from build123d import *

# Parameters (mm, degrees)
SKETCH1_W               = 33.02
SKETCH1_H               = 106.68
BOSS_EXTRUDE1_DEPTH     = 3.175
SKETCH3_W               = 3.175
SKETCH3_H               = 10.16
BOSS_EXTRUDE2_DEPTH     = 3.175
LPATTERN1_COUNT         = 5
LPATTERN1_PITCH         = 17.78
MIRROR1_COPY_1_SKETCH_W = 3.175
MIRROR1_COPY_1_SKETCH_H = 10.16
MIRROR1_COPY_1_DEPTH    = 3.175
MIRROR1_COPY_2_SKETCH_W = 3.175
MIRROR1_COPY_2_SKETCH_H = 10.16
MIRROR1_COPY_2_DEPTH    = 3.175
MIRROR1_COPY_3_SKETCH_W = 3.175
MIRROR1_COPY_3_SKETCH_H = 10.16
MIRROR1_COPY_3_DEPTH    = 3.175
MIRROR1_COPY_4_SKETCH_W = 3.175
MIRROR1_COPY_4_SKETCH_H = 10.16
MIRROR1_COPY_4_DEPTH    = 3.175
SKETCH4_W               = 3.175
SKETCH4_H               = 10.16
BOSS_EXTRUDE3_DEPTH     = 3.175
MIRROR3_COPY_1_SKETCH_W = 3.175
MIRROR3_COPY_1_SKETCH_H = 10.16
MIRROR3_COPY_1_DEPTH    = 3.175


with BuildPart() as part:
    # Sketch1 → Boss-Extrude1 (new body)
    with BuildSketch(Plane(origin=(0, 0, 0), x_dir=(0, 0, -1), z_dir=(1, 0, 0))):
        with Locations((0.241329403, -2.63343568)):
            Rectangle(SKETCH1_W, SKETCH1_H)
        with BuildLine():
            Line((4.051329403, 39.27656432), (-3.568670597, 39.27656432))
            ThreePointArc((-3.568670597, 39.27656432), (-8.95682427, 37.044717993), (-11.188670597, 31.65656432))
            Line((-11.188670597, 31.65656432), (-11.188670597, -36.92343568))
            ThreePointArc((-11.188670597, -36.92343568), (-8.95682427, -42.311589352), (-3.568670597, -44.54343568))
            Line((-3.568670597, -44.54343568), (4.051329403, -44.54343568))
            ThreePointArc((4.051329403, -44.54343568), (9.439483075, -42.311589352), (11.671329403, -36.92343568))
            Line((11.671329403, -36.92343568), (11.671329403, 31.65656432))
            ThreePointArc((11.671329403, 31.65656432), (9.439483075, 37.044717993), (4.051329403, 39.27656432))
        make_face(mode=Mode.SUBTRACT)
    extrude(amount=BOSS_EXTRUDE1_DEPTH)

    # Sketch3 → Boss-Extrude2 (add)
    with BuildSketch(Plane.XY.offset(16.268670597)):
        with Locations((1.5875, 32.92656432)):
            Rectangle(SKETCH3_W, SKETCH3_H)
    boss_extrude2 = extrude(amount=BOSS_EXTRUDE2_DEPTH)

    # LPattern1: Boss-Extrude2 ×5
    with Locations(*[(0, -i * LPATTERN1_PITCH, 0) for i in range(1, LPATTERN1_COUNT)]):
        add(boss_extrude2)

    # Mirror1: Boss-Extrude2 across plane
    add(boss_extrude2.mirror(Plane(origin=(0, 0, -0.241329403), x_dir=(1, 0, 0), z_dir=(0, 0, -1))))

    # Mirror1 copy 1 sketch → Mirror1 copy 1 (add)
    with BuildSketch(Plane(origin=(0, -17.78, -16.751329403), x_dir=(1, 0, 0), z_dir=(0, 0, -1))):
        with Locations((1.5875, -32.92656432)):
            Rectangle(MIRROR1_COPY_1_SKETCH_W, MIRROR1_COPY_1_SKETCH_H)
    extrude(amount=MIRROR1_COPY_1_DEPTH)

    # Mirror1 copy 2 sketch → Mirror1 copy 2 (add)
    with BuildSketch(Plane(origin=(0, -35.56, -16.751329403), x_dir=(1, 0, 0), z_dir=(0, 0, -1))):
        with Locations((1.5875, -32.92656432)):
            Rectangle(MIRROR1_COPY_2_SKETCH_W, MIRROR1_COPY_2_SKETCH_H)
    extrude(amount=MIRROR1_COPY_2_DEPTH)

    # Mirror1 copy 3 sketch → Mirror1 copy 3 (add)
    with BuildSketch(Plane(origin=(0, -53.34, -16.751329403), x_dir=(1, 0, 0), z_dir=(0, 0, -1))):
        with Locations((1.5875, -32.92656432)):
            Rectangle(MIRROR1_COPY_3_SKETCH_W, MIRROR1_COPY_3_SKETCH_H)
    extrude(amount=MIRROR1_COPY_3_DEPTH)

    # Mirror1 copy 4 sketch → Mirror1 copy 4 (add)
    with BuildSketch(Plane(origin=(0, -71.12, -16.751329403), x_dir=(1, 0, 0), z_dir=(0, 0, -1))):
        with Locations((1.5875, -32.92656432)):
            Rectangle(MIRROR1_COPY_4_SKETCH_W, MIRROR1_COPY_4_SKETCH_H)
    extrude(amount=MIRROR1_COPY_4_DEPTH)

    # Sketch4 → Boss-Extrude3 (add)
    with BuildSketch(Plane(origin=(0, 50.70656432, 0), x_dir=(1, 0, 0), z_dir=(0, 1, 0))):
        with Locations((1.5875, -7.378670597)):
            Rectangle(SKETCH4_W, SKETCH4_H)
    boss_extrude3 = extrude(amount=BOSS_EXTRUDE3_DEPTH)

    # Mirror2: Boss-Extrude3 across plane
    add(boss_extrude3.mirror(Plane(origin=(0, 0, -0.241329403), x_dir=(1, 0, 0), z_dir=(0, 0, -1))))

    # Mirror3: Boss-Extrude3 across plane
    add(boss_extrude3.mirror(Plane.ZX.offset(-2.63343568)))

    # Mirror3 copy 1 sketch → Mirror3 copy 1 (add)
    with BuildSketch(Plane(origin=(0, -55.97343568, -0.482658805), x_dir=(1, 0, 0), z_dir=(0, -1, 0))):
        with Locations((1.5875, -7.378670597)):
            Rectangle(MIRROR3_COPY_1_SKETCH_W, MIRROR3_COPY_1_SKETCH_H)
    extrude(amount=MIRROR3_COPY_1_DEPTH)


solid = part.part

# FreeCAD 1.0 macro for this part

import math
import FreeCAD as App
import Part
import Sketcher
from FreeCAD import Vector
Q = App.Units.Quantity

doc = App.newDocument("Part")
body = doc.addObject("PartDesign::Body", "Body")

sketch1 = doc.addObject("Sketcher::SketchObject", "Sketch")
body.addObject(sketch1)
sketch1.AttachmentSupport = (doc.YZ_Plane, [""])
sketch1.MapMode = "FlatFace"
sketch1.addGeometry(Part.LineSegment(Vector(51, 16, 0), Vector(-56, 16, 0)), False)
sketch1.addGeometry(Part.LineSegment(Vector(-56, 16, 0), Vector(-56, -17, 0)), False)
sketch1.addGeometry(Part.LineSegment(Vector(-56, -17, 0), Vector(51, -17, 0)), False)
sketch1.addGeometry(Part.LineSegment(Vector(51, -17, 0), Vector(51, 16, 0)), False)
sketch1.addGeometry(Part.LineSegment(Vector(39, 4, 0), Vector(39, -4, 0)), False)
sketch1.addGeometry(Part.ArcOfCircle(Part.Circle(Vector(32, -4, 0), Vector(0, 0, 1), 8), math.radians(-90), math.radians(0)), False)
sketch1.addGeometry(Part.LineSegment(Vector(32, -12, 0), Vector(-37, -12, 0)), False)
sketch1.addGeometry(Part.ArcOfCircle(Part.Circle(Vector(-37, -4, 0), Vector(0, 0, 1), 8), math.radians(-180), math.radians(-90)), False)
sketch1.addGeometry(Part.LineSegment(Vector(-45, -4, 0), Vector(-45, 4, 0)), False)
sketch1.addGeometry(Part.ArcOfCircle(Part.Circle(Vector(-37, 4, 0), Vector(0, 0, 1), 8), math.radians(90), math.radians(180)), False)
sketch1.addGeometry(Part.LineSegment(Vector(-37, 11, 0), Vector(32, 11, 0)), False)
sketch1.addGeometry(Part.ArcOfCircle(Part.Circle(Vector(32, 4, 0), Vector(0, 0, 1), 8), math.radians(0), math.radians(90)), False)
sketch1.addConstraint(Sketcher.Constraint("Coincident", 0, 2, 1, 1))
sketch1.addConstraint(Sketcher.Constraint("Coincident", 1, 2, 2, 1))
sketch1.addConstraint(Sketcher.Constraint("Coincident", 2, 2, 3, 1))
sketch1.addConstraint(Sketcher.Constraint("Coincident", 3, 2, 0, 1))
sketch1.addConstraint(Sketcher.Constraint("Tangent", 4, 2, 5, 2))
sketch1.addConstraint(Sketcher.Constraint("Tangent", 5, 1, 6, 1))
sketch1.addConstraint(Sketcher.Constraint("Tangent", 6, 2, 7, 2))
sketch1.addConstraint(Sketcher.Constraint("Tangent", 7, 1, 8, 1))
sketch1.addConstraint(Sketcher.Constraint("Tangent", 8, 2, 9, 2))
sketch1.addConstraint(Sketcher.Constraint("Tangent", 9, 1, 10, 1))
sketch1.addConstraint(Sketcher.Constraint("Tangent", 10, 2, 11, 2))
sketch1.addConstraint(Sketcher.Constraint("Tangent", 11, 1, 4, 1))
sketch1.addConstraint(Sketcher.Constraint("Horizontal", 0))
sketch1.addConstraint(Sketcher.Constraint("Vertical", 1))
sketch1.addConstraint(Sketcher.Constraint("Horizontal", 2))
sketch1.addConstraint(Sketcher.Constraint("Vertical", 3))
sketch1.addConstraint(Sketcher.Constraint("Vertical", 4))
sketch1.addConstraint(Sketcher.Constraint("Horizontal", 6))
sketch1.addConstraint(Sketcher.Constraint("Vertical", 8))
sketch1.addConstraint(Sketcher.Constraint("Horizontal", 10))
sketch1.addConstraint(Sketcher.Constraint("Equal", 5, 7))
sketch1.addConstraint(Sketcher.Constraint("Equal", 7, 9))
sketch1.addConstraint(Sketcher.Constraint("Equal", 9, 11))
sketch1.addConstraint(Sketcher.Constraint("Radius", 5, Q("0.3 in")))
sketch1.addConstraint(Sketcher.Constraint("DistanceX", 0, 2, 0, 1, Q("4.2 in")))
sketch1.addConstraint(Sketcher.Constraint("DistanceX", 6, 2, 6, 1, Q("2.7 in")))
sketch1.addConstraint(Sketcher.Constraint("DistanceY", 1, 2, 1, 1, Q("1.3 in")))
sketch1.addConstraint(Sketcher.Constraint("DistanceY", 4, 2, 4, 1, Q("0.3 in")))
sketch1.addConstraint(Sketcher.Constraint("DistanceY", 9, 3, 0, 2, Q("0.5 in")))
sketch1.addConstraint(Sketcher.Constraint("DistanceX", 0, 2, 9, 3, Q("0.75 in")))
sketch1.addConstraint(Sketcher.Constraint("DistanceY", 5, 3, -1, 1, 4.051329))
sketch1.addConstraint(Sketcher.Constraint("DistanceX", -1, 1, 5, 3, 31.656564))
pad1 = doc.addObject("PartDesign::Pad", "Pad")
body.addObject(pad1)
pad1.Profile = sketch1
pad1.Length = Q("0.125 in")

sketch2 = doc.addObject("Sketcher::SketchObject", "Sketch001")
body.addObject(sketch2)
sketch2.AttachmentSupport = (doc.XY_Plane, [""])
sketch2.MapMode = "FlatFace"
sketch2.AttachmentOffset = App.Placement(Vector(0, 0, 16.268671), App.Rotation())
sketch2.addGeometry(Part.LineSegment(Vector(0, 38, 0), Vector(0, 27.8, 0)), False)
sketch2.addGeometry(Part.LineSegment(Vector(0, 27.8, 0), Vector(3.2, 27.8, 0)), False)
sketch2.addGeometry(Part.LineSegment(Vector(3.2, 27.8, 0), Vector(3.2, 38, 0)), False)
sketch2.addGeometry(Part.LineSegment(Vector(3.2, 38, 0), Vector(0, 38, 0)), False)
sketch2.addConstraint(Sketcher.Constraint("Coincident", 0, 2, 1, 1))
sketch2.addConstraint(Sketcher.Constraint("Coincident", 1, 2, 2, 1))
sketch2.addConstraint(Sketcher.Constraint("Coincident", 2, 2, 3, 1))
sketch2.addConstraint(Sketcher.Constraint("Coincident", 3, 2, 0, 1))
sketch2.addConstraint(Sketcher.Constraint("Vertical", 0))
sketch2.addConstraint(Sketcher.Constraint("Horizontal", 1))
sketch2.addConstraint(Sketcher.Constraint("Vertical", 2))
sketch2.addConstraint(Sketcher.Constraint("Horizontal", 3))
sketch2.addConstraint(Sketcher.Constraint("PointOnObject", 0, 2, -2))
sketch2.addConstraint(Sketcher.Constraint("DistanceY", 0, 2, 0, 1, Q("0.4 in")))
sketch2.addConstraint(Sketcher.Constraint("DistanceX", 1, 1, 1, 2, Q("0.125 in")))
sketch2.addConstraint(Sketcher.Constraint("DistanceY", -1, 1, 0, 2, 27.846564))
pad2 = doc.addObject("PartDesign::Pad", "Pad001")
body.addObject(pad2)
pad2.Profile = sketch2
pad2.Length = Q("0.125 in")
doc.recompute()

linearpattern = doc.addObject("PartDesign::LinearPattern", "LinearPattern")
body.addObject(linearpattern)
linearpattern.Originals = [pad2]
linearpattern.Direction = (doc.Y_Axis, [""])
linearpattern.Mode = "offset"
linearpattern.Offset = Q("0.7 in")
linearpattern.Occurrences = 5
linearpattern.Reversed = True
body.Tip = linearpattern
doc.recompute()

datumplane = doc.addObject("PartDesign::Plane", "DatumPlane")
body.addObject(datumplane)
datumplane.AttachmentSupport = (doc.XY_Plane, [""])
datumplane.MapMode = "FlatFace"
datumplane.AttachmentOffset = App.Placement(Vector(0, 0, -0.241329), App.Rotation())
mirrored = doc.addObject("PartDesign::Mirrored", "Mirrored")
body.addObject(mirrored)
mirrored.Originals = [pad2]
mirrored.MirrorPlane = (datumplane, [""])
body.Tip = mirrored

sketch3 = doc.addObject("Sketcher::SketchObject", "Sketch002")
body.addObject(sketch3)
sketch3.AttachmentSupport = (doc.XY_Plane, [""])
sketch3.MapMode = "FlatFace"
sketch3.AttachmentOffset = App.Placement(Vector(0, 0, -16.751329), App.Rotation())
sketch3.addGeometry(Part.LineSegment(Vector(0, 10.1, 0), Vector(0, 20.2, 0)), False)
sketch3.addGeometry(Part.LineSegment(Vector(0, 20.2, 0), Vector(3.2, 20.2, 0)), False)
sketch3.addGeometry(Part.LineSegment(Vector(3.2, 20.2, 0), Vector(3.2, 10.1, 0)), False)
sketch3.addGeometry(Part.LineSegment(Vector(3.2, 10.1, 0), Vector(0, 10.1, 0)), False)
sketch3.addConstraint(Sketcher.Constraint("Coincident", 0, 2, 1, 1))
sketch3.addConstraint(Sketcher.Constraint("Coincident", 1, 2, 2, 1))
sketch3.addConstraint(Sketcher.Constraint("Coincident", 2, 2, 3, 1))
sketch3.addConstraint(Sketcher.Constraint("Coincident", 3, 2, 0, 1))
sketch3.addConstraint(Sketcher.Constraint("Vertical", 0))
sketch3.addConstraint(Sketcher.Constraint("Horizontal", 1))
sketch3.addConstraint(Sketcher.Constraint("Vertical", 2))
sketch3.addConstraint(Sketcher.Constraint("Horizontal", 3))
sketch3.addConstraint(Sketcher.Constraint("PointOnObject", 0, 2, -2))
sketch3.addConstraint(Sketcher.Constraint("DistanceY", 0, 1, 0, 2, Q("0.4 in")))
sketch3.addConstraint(Sketcher.Constraint("DistanceX", 1, 1, 1, 2, Q("0.125 in")))
sketch3.addConstraint(Sketcher.Constraint("DistanceY", -1, 1, 0, 2, 20.226564))
pad3 = doc.addObject("PartDesign::Pad", "Pad002")
body.addObject(pad3)
pad3.Profile = sketch3
pad3.Length = Q("0.125 in")
pad3.Reversed = True

sketch4 = doc.addObject("Sketcher::SketchObject", "Sketch003")
body.addObject(sketch4)
sketch4.AttachmentSupport = (doc.XY_Plane, [""])
sketch4.MapMode = "FlatFace"
sketch4.AttachmentOffset = App.Placement(Vector(0, 0, -16.751329), App.Rotation())
sketch4.addGeometry(Part.LineSegment(Vector(0, -7.7, 0), Vector(0, 2.4, 0)), False)
sketch4.addGeometry(Part.LineSegment(Vector(0, 2.4, 0), Vector(3.2, 2.4, 0)), False)
sketch4.addGeometry(Part.LineSegment(Vector(3.2, 2.4, 0), Vector(3.2, -7.7, 0)), False)
sketch4.addGeometry(Part.LineSegment(Vector(3.2, -7.7, 0), Vector(0, -7.7, 0)), False)
sketch4.addConstraint(Sketcher.Constraint("Coincident", 0, 2, 1, 1))
sketch4.addConstraint(Sketcher.Constraint("Coincident", 1, 2, 2, 1))
sketch4.addConstraint(Sketcher.Constraint("Coincident", 2, 2, 3, 1))
sketch4.addConstraint(Sketcher.Constraint("Coincident", 3, 2, 0, 1))
sketch4.addConstraint(Sketcher.Constraint("Vertical", 0))
sketch4.addConstraint(Sketcher.Constraint("Horizontal", 1))
sketch4.addConstraint(Sketcher.Constraint("Vertical", 2))
sketch4.addConstraint(Sketcher.Constraint("Horizontal", 3))
sketch4.addConstraint(Sketcher.Constraint("PointOnObject", 0, 2, -2))
sketch4.addConstraint(Sketcher.Constraint("DistanceY", 0, 1, 0, 2, Q("0.4 in")))
sketch4.addConstraint(Sketcher.Constraint("DistanceX", 1, 1, 1, 2, Q("0.125 in")))
sketch4.addConstraint(Sketcher.Constraint("DistanceY", -1, 1, 0, 2, 2.446564))
pad4 = doc.addObject("PartDesign::Pad", "Pad003")
body.addObject(pad4)
pad4.Profile = sketch4
pad4.Length = Q("0.125 in")
pad4.Reversed = True

sketch5 = doc.addObject("Sketcher::SketchObject", "Sketch004")
body.addObject(sketch5)
sketch5.AttachmentSupport = (doc.XY_Plane, [""])
sketch5.MapMode = "FlatFace"
sketch5.AttachmentOffset = App.Placement(Vector(0, 0, -16.751329), App.Rotation())
sketch5.addGeometry(Part.LineSegment(Vector(0, -25.5, 0), Vector(0, -15.3, 0)), False)
sketch5.addGeometry(Part.LineSegment(Vector(0, -15.3, 0), Vector(3.2, -15.3, 0)), False)
sketch5.addGeometry(Part.LineSegment(Vector(3.2, -15.3, 0), Vector(3.2, -25.5, 0)), False)
sketch5.addGeometry(Part.LineSegment(Vector(3.2, -25.5, 0), Vector(0, -25.5, 0)), False)
sketch5.addConstraint(Sketcher.Constraint("Coincident", 0, 2, 1, 1))
sketch5.addConstraint(Sketcher.Constraint("Coincident", 1, 2, 2, 1))
sketch5.addConstraint(Sketcher.Constraint("Coincident", 2, 2, 3, 1))
sketch5.addConstraint(Sketcher.Constraint("Coincident", 3, 2, 0, 1))
sketch5.addConstraint(Sketcher.Constraint("Vertical", 0))
sketch5.addConstraint(Sketcher.Constraint("Horizontal", 1))
sketch5.addConstraint(Sketcher.Constraint("Vertical", 2))
sketch5.addConstraint(Sketcher.Constraint("Horizontal", 3))
sketch5.addConstraint(Sketcher.Constraint("PointOnObject", 0, 2, -2))
sketch5.addConstraint(Sketcher.Constraint("DistanceY", 0, 1, 0, 2, Q("0.4 in")))
sketch5.addConstraint(Sketcher.Constraint("DistanceX", 1, 1, 1, 2, Q("0.125 in")))
sketch5.addConstraint(Sketcher.Constraint("DistanceY", 0, 2, -1, 1, 15.333436))
pad5 = doc.addObject("PartDesign::Pad", "Pad004")
body.addObject(pad5)
pad5.Profile = sketch5
pad5.Length = Q("0.125 in")
pad5.Reversed = True

sketch6 = doc.addObject("Sketcher::SketchObject", "Sketch005")
body.addObject(sketch6)
sketch6.AttachmentSupport = (doc.XY_Plane, [""])
sketch6.MapMode = "FlatFace"
sketch6.AttachmentOffset = App.Placement(Vector(0, 0, -16.751329), App.Rotation())
sketch6.addGeometry(Part.LineSegment(Vector(0, -43.3, 0), Vector(0, -33.1, 0)), False)
sketch6.addGeometry(Part.LineSegment(Vector(0, -33.1, 0), Vector(3.2, -33.1, 0)), False)
sketch6.addGeometry(Part.LineSegment(Vector(3.2, -33.1, 0), Vector(3.2, -43.3, 0)), False)
sketch6.addGeometry(Part.LineSegment(Vector(3.2, -43.3, 0), Vector(0, -43.3, 0)), False)
sketch6.addConstraint(Sketcher.Constraint("Coincident", 0, 2, 1, 1))
sketch6.addConstraint(Sketcher.Constraint("Coincident", 1, 2, 2, 1))
sketch6.addConstraint(Sketcher.Constraint("Coincident", 2, 2, 3, 1))
sketch6.addConstraint(Sketcher.Constraint("Coincident", 3, 2, 0, 1))
sketch6.addConstraint(Sketcher.Constraint("Vertical", 0))
sketch6.addConstraint(Sketcher.Constraint("Horizontal", 1))
sketch6.addConstraint(Sketcher.Constraint("Vertical", 2))
sketch6.addConstraint(Sketcher.Constraint("Horizontal", 3))
sketch6.addConstraint(Sketcher.Constraint("PointOnObject", 0, 2, -2))
sketch6.addConstraint(Sketcher.Constraint("DistanceY", 0, 1, 0, 2, Q("0.4 in")))
sketch6.addConstraint(Sketcher.Constraint("DistanceX", 1, 1, 1, 2, Q("0.125 in")))
sketch6.addConstraint(Sketcher.Constraint("DistanceY", 0, 2, -1, 1, 33.113436))
pad6 = doc.addObject("PartDesign::Pad", "Pad005")
body.addObject(pad6)
pad6.Profile = sketch6
pad6.Length = Q("0.125 in")
pad6.Reversed = True

sketch7 = doc.addObject("Sketcher::SketchObject", "Sketch006")
body.addObject(sketch7)
sketch7.AttachmentSupport = (doc.XZ_Plane, [""])
sketch7.MapMode = "FlatFace"
sketch7.AttachmentOffset = App.Placement(Vector(0, 0, -50.706564), App.Rotation())
sketch7.addGeometry(Part.LineSegment(Vector(0, 2.3, 0), Vector(0, 12.5, 0)), False)
sketch7.addGeometry(Part.LineSegment(Vector(0, 12.5, 0), Vector(3.2, 12.5, 0)), False)
sketch7.addGeometry(Part.LineSegment(Vector(3.2, 12.5, 0), Vector(3.2, 2.3, 0)), False)
sketch7.addGeometry(Part.LineSegment(Vector(3.2, 2.3, 0), Vector(0, 2.3, 0)), False)
sketch7.addConstraint(Sketcher.Constraint("Coincident", 0, 2, 1, 1))
sketch7.addConstraint(Sketcher.Constraint("Coincident", 1, 2, 2, 1))
sketch7.addConstraint(Sketcher.Constraint("Coincident", 2, 2, 3, 1))
sketch7.addConstraint(Sketcher.Constraint("Coincident", 3, 2, 0, 1))
sketch7.addConstraint(Sketcher.Constraint("Vertical", 0))
sketch7.addConstraint(Sketcher.Constraint("Horizontal", 1))
sketch7.addConstraint(Sketcher.Constraint("Vertical", 2))
sketch7.addConstraint(Sketcher.Constraint("Horizontal", 3))
sketch7.addConstraint(Sketcher.Constraint("PointOnObject", 0, 2, -2))
sketch7.addConstraint(Sketcher.Constraint("DistanceY", 0, 1, 0, 2, Q("0.4 in")))
sketch7.addConstraint(Sketcher.Constraint("DistanceX", 1, 1, 1, 2, Q("0.125 in")))
sketch7.addConstraint(Sketcher.Constraint("DistanceY", -1, 1, 0, 2, 12.458671))
pad7 = doc.addObject("PartDesign::Pad", "Pad006")
body.addObject(pad7)
pad7.Profile = sketch7
pad7.Length = Q("0.125 in")
pad7.Reversed = True
doc.recompute()

datumplane2 = doc.addObject("PartDesign::Plane", "DatumPlane001")
body.addObject(datumplane2)
datumplane2.AttachmentSupport = (doc.XY_Plane, [""])
datumplane2.MapMode = "FlatFace"
datumplane2.AttachmentOffset = App.Placement(Vector(0, 0, -0.241329), App.Rotation())
mirrored2 = doc.addObject("PartDesign::Mirrored", "Mirrored001")
body.addObject(mirrored2)
mirrored2.Originals = [pad7]
mirrored2.MirrorPlane = (datumplane2, [""])
body.Tip = mirrored2
doc.recompute()

datumplane3 = doc.addObject("PartDesign::Plane", "DatumPlane002")
body.addObject(datumplane3)
datumplane3.AttachmentSupport = (doc.XZ_Plane, [""])
datumplane3.MapMode = "FlatFace"
datumplane3.AttachmentOffset = App.Placement(Vector(0, 0, 2.633436), App.Rotation())
mirrored3 = doc.addObject("PartDesign::Mirrored", "Mirrored002")
body.addObject(mirrored3)
mirrored3.Originals = [pad7]
mirrored3.MirrorPlane = (datumplane3, [""])
body.Tip = mirrored3

sketch8 = doc.addObject("Sketcher::SketchObject", "Sketch007")
body.addObject(sketch8)
sketch8.AttachmentSupport = (doc.XZ_Plane, [""])
sketch8.MapMode = "FlatFace"
sketch8.AttachmentOffset = App.Placement(Vector(0, 0, 55.973436), App.Rotation())
sketch8.addGeometry(Part.LineSegment(Vector(0, -2.8, 0), Vector(0, -12.9, 0)), False)
sketch8.addGeometry(Part.LineSegment(Vector(0, -12.9, 0), Vector(3.2, -12.9, 0)), False)
sketch8.addGeometry(Part.LineSegment(Vector(3.2, -12.9, 0), Vector(3.2, -2.8, 0)), False)
sketch8.addGeometry(Part.LineSegment(Vector(3.2, -2.8, 0), Vector(0, -2.8, 0)), False)
sketch8.addConstraint(Sketcher.Constraint("Coincident", 0, 2, 1, 1))
sketch8.addConstraint(Sketcher.Constraint("Coincident", 1, 2, 2, 1))
sketch8.addConstraint(Sketcher.Constraint("Coincident", 2, 2, 3, 1))
sketch8.addConstraint(Sketcher.Constraint("Coincident", 3, 2, 0, 1))
sketch8.addConstraint(Sketcher.Constraint("Vertical", 0))
sketch8.addConstraint(Sketcher.Constraint("Horizontal", 1))
sketch8.addConstraint(Sketcher.Constraint("Vertical", 2))
sketch8.addConstraint(Sketcher.Constraint("Horizontal", 3))
sketch8.addConstraint(Sketcher.Constraint("PointOnObject", 0, 2, -2))
sketch8.addConstraint(Sketcher.Constraint("DistanceY", 0, 2, 0, 1, Q("0.4 in")))
sketch8.addConstraint(Sketcher.Constraint("DistanceX", 1, 1, 1, 2, Q("0.125 in")))
sketch8.addConstraint(Sketcher.Constraint("DistanceY", 0, 2, -1, 1, 12.941329))
pad8 = doc.addObject("PartDesign::Pad", "Pad007")
body.addObject(pad8)
pad8.Profile = sketch8
pad8.Length = Q("0.125 in")

doc.recompute()
